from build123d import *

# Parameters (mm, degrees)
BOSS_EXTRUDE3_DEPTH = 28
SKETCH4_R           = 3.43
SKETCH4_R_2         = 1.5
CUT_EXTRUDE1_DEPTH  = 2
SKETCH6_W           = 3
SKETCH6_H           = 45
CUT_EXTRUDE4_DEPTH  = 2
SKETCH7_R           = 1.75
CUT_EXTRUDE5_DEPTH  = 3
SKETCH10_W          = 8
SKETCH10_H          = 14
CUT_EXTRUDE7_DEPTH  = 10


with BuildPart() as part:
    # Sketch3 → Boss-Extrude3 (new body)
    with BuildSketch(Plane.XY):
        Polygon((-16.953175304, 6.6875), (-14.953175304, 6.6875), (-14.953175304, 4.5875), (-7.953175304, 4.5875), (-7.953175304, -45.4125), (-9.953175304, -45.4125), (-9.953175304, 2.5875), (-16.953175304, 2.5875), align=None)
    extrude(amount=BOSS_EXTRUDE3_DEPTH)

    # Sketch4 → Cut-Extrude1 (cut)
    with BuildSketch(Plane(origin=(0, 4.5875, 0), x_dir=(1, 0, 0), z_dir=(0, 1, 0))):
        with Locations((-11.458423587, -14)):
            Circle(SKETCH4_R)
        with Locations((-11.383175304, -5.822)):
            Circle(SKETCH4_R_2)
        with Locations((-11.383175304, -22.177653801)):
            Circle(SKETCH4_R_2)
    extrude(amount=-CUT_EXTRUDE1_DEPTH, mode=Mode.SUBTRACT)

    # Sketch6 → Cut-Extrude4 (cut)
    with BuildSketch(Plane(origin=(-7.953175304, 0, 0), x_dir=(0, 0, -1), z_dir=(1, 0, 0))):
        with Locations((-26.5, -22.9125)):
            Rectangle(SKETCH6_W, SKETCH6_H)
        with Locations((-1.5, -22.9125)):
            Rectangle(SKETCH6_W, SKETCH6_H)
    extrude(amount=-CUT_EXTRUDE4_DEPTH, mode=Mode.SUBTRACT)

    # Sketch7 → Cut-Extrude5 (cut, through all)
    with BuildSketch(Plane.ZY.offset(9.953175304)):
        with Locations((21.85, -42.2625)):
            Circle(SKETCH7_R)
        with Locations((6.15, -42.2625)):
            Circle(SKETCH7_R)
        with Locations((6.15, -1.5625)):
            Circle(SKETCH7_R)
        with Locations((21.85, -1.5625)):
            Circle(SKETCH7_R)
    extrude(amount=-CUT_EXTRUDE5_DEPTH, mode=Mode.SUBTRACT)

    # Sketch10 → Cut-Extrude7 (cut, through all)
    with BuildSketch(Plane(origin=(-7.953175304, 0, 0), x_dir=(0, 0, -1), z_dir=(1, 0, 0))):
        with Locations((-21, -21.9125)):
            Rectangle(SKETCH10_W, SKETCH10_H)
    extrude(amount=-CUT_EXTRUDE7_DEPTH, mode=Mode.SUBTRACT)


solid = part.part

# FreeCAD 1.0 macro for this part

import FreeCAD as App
import Part
import Sketcher

V = App.Vector
Q = App.Units.Quantity


def add_polygon(sketch, points):
    """Adds a closed chain of lines whose ends are joined by coincident constraints."""
    first, n = sketch.GeometryCount, len(points)
    for a, b in zip(points, points[1:] + points[:1]):
        sketch.addGeometry(Part.LineSegment(App.Vector(*a, 0), App.Vector(*b, 0)), False)
    for i in range(n):
        sketch.addConstraint(Sketcher.Constraint("Coincident", first + i, 2, first + (i + 1) % n, 1))

doc = App.newDocument("Part")
body = doc.addObject("PartDesign::Body", "Body")

sketch1 = body.newObject("Sketcher::SketchObject", "Sketch")
sketch1.AttachmentSupport = (doc.getObject("XY_Plane"), [""])
sketch1.MapMode = "FlatFace"
add_polygon(sketch1, [(-15, 6.7), (-17, 6.7), (-17, 2.6), (-10, 2.6), (-10, -45.4), (-8, -45.4), (-8, 4.6), (-15, 4.6)])
sketch1.addConstraint([
    Sketcher.Constraint("Horizontal", 0),
    Sketcher.Constraint("Vertical", 1),
    Sketcher.Constraint("Horizontal", 2),
    Sketcher.Constraint("Vertical", 3),
    Sketcher.Constraint("Horizontal", 4),
    Sketcher.Constraint("Vertical", 5),
    Sketcher.Constraint("Horizontal", 6),
    Sketcher.Constraint("Vertical", 7),
    Sketcher.Constraint("Equal", 0, 4),
    Sketcher.Constraint("DistanceX", 0, 2, 0, 1, Q("2 mm")),
    Sketcher.Constraint("DistanceX", 2, 1, 2, 2, Q("7 mm")),
    Sketcher.Constraint("DistanceY", 3, 2, 3, 1, Q("48 mm")),
    Sketcher.Constraint("DistanceY", 5, 1, 5, 2, Q("50 mm")),
    Sketcher.Constraint("DistanceY", 1, 2, 1, 1, Q("4.1 mm")),
    Sketcher.Constraint("DistanceY", -1, 1, 0, 2, Q("6.6875 mm")),
    Sketcher.Constraint("DistanceX", 0, 2, -1, 1, Q("16.953175 mm")),
])
pad1 = body.newObject("PartDesign::Pad", "Pad")
pad1.Profile = sketch1
pad1.Length = 28

sketch2 = body.newObject("Sketcher::SketchObject", "Sketch001")
sketch2.AttachmentSupport = (doc.getObject("XZ_Plane"), [""])
sketch2.MapMode = "FlatFace"
sketch2.AttachmentOffset = App.Placement(V(0, 0, -4.5875), App.Rotation())
sketch2.addGeometry([
    Part.Circle(V(-11.5, 14, 0), V(0, 0, 1), 3.4),
    Part.Circle(V(-11.4, 5.8, 0), V(0, 0, 1), 1.5),
    Part.Circle(V(-11.4, 22.2, 0), V(0, 0, 1), 1.5),
], False)
sketch2.addConstraint([
    Sketcher.Constraint("Equal", 1, 2),
    Sketcher.Constraint("Vertical", 1, 3, 2, 3),
    Sketcher.Constraint("Diameter", 1, Q("3 mm")),
    Sketcher.Constraint("Diameter", 0, Q("6.86 mm")),
    Sketcher.Constraint("DistanceY", -1, 1, 0, 3, Q("14 mm")),
    Sketcher.Constraint("DistanceY", -1, 1, 1, 3, Q("5.822 mm")),
    Sketcher.Constraint("DistanceX", 0, 3, 1, 3, Q("0.075248 mm")),
    Sketcher.Constraint("DistanceX", 0, 3, -1, 1, Q("11.458424 mm")),
    Sketcher.Constraint("DistanceY", -1, 1, 2, 3, Q("22.177654 mm")),
])
pocket1 = body.newObject("PartDesign::Pocket", "Pocket")
pocket1.Profile = sketch2
pocket1.Length = 2
pocket1.Reversed = True

sketch3 = body.newObject("Sketcher::SketchObject", "Sketch002")
sketch3.AttachmentSupport = (doc.getObject("YZ_Plane"), [""])
sketch3.MapMode = "FlatFace"
sketch3.AttachmentOffset = App.Placement(V(0, 0, -7.953175), App.Rotation())
add_polygon(sketch3, [(-0.4, 28), (-45.4, 28), (-45.4, 25), (-0.4, 25)])
add_polygon(sketch3, [(-0.4, 3), (-45.4, 3), (-45.4, 0), (-0.4, 0)])
sketch3.addConstraint([
    Sketcher.Constraint("Horizontal", 0),
    Sketcher.Constraint("Vertical", 1),
    Sketcher.Constraint("Horizontal", 2),
    Sketcher.Constraint("Vertical", 3),
    Sketcher.Constraint("Horizontal", 4),
    Sketcher.Constraint("Vertical", 5),
    Sketcher.Constraint("Horizontal", 6),
    Sketcher.Constraint("Vertical", 7),
    Sketcher.Constraint("PointOnObject", 5, 2, -1),
    Sketcher.Constraint("Vertical", 1, 2, 4, 2),
    Sketcher.Constraint("Vertical", 3, 2, 6, 2),
    Sketcher.Constraint("Equal", 3, 5),
    Sketcher.Constraint("DistanceX", 0, 2, 0, 1, Q("45 mm")),
    Sketcher.Constraint("DistanceY", 1, 2, 1, 1, Q("3 mm")),
    Sketcher.Constraint("DistanceY", -1, 1, 0, 2, Q("28 mm")),
    Sketcher.Constraint("DistanceX", 0, 2, -1, 1, Q("45.4125 mm")),
])
pocket2 = body.newObject("PartDesign::Pocket", "Pocket001")
pocket2.Profile = sketch3
pocket2.Length = 2

sketch4 = body.newObject("Sketcher::SketchObject", "Sketch003")
sketch4.AttachmentSupport = (doc.getObject("YZ_Plane"), [""])
sketch4.MapMode = "FlatFace"
sketch4.AttachmentOffset = App.Placement(V(0, 0, -9.953175), App.Rotation())
sketch4.addGeometry([
    Part.Circle(V(-42.3, 21.9, 0), V(0, 0, 1), 1.8),
    Part.Circle(V(-42.3, 6.2, 0), V(0, 0, 1), 1.8),
    Part.Circle(V(-1.6, 6.2, 0), V(0, 0, 1), 1.8),
    Part.Circle(V(-1.6, 21.9, 0), V(0, 0, 1), 1.8),
], False)
sketch4.addConstraint([
    Sketcher.Constraint("Equal", 0, 1),
    Sketcher.Constraint("Equal", 1, 2),
    Sketcher.Constraint("Equal", 2, 3),
    Sketcher.Constraint("Horizontal", 1, 3, 2, 3),
    Sketcher.Constraint("Horizontal", 0, 3, 3, 3),
    Sketcher.Constraint("Vertical", 0, 3, 1, 3),
    Sketcher.Constraint("Vertical", 2, 3, 3, 3),
    Sketcher.Constraint("Diameter", 0, Q("3.5 mm")),
    Sketcher.Constraint("DistanceY", 1, 3, 0, 3, Q("15.7 mm")),
    Sketcher.Constraint("DistanceX", 1, 3, 2, 3, Q("40.7 mm")),
    Sketcher.Constraint("DistanceY", -1, 1, 0, 3, Q("21.85 mm")),
    Sketcher.Constraint("DistanceX", 0, 3, -1, 1, Q("42.2625 mm")),
])
pocket3 = body.newObject("PartDesign::Pocket", "Pocket002")
pocket3.Profile = sketch4
pocket3.Type = "ThroughAll"
pocket3.Reversed = True

sketch5 = body.newObject("Sketcher::SketchObject", "Sketch004")
sketch5.AttachmentSupport = (doc.getObject("YZ_Plane"), [""])
sketch5.MapMode = "FlatFace"
sketch5.AttachmentOffset = App.Placement(V(0, 0, -7.953175), App.Rotation())
add_polygon(sketch5, [(-15, 25), (-29, 25), (-29, 17), (-15, 17)])
sketch5.addConstraint([
    Sketcher.Constraint("Horizontal", 0),
    Sketcher.Constraint("Vertical", 1),
    Sketcher.Constraint("Horizontal", 2),
    Sketcher.Constraint("Vertical", 3),
    Sketcher.Constraint("DistanceX", 0, 2, 0, 1, Q("14 mm")),
    Sketcher.Constraint("DistanceY", 1, 2, 1, 1, Q("8 mm")),
    Sketcher.Constraint("DistanceY", -1, 1, 0, 2, Q("25 mm")),
    Sketcher.Constraint("DistanceX", 0, 2, -1, 1, Q("28.9125 mm")),
])
pocket4 = body.newObject("PartDesign::Pocket", "Pocket003")
pocket4.Profile = sketch5
pocket4.Type = "ThroughAll"

doc.recompute()
